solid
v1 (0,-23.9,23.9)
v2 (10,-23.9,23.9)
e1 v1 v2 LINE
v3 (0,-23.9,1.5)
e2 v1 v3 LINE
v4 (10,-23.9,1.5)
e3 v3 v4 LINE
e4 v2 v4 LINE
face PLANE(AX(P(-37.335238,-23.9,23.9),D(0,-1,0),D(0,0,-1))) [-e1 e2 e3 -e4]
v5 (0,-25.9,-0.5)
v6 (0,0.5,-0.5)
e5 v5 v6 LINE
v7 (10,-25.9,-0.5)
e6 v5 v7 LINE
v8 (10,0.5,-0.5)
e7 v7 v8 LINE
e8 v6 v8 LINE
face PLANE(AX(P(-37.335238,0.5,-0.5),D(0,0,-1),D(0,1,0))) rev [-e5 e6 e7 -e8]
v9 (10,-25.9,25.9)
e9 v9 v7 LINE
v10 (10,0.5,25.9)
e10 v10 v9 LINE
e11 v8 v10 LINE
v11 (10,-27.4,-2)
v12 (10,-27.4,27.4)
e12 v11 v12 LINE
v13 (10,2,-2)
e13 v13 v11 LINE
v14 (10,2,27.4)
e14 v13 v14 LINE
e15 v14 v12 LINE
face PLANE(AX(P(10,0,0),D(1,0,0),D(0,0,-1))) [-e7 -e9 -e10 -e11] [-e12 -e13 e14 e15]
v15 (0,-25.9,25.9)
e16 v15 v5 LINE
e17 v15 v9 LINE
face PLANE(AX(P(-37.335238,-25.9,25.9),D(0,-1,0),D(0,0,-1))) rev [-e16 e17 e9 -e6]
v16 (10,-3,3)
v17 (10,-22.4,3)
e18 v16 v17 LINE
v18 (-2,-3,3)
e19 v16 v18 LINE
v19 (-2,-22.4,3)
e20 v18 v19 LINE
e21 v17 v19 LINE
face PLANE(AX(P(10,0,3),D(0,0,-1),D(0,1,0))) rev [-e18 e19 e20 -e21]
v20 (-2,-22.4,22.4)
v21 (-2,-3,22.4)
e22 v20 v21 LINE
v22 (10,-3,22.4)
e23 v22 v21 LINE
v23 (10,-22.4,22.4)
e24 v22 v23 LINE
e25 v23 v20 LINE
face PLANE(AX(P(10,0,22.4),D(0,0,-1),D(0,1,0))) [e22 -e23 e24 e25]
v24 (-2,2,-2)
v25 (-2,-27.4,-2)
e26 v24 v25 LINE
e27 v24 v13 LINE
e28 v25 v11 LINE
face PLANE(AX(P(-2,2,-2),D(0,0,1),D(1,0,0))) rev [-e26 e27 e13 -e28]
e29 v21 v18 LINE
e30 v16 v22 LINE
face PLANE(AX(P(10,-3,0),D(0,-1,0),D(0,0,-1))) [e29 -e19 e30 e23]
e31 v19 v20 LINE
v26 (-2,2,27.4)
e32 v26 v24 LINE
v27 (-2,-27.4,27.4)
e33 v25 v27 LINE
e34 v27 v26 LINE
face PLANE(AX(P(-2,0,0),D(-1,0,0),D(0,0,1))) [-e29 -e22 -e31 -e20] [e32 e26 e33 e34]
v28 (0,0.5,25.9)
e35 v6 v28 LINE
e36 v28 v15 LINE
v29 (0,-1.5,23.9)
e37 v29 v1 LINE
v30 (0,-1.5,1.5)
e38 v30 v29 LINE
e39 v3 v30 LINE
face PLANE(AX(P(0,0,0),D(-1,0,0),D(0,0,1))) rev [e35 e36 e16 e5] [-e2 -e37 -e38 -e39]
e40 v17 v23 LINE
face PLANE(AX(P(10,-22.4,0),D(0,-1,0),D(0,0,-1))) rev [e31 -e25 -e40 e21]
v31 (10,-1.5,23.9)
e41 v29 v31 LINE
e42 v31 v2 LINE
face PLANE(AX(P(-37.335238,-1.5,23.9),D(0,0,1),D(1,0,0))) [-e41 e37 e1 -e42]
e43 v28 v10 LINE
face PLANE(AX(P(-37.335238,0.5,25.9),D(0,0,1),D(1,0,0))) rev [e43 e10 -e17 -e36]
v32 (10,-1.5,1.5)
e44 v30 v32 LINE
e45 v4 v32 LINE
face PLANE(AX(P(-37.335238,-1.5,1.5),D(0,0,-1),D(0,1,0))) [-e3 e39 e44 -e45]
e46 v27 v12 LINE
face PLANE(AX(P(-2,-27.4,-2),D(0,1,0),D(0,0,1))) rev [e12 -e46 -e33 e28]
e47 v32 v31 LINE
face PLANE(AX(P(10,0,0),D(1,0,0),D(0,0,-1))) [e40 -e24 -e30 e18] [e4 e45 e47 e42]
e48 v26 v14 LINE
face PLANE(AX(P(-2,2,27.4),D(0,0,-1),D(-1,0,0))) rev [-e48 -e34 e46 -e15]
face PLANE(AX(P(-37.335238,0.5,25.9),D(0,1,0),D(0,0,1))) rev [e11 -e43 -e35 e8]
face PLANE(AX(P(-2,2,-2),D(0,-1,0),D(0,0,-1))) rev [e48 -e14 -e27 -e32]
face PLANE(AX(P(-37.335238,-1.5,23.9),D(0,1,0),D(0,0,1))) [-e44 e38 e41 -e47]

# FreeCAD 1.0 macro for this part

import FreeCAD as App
import Part
import Sketcher

V = App.Vector
Q = App.Units.Quantity

doc = App.newDocument("Part")
params = doc.addObject("Spreadsheet::Sheet", "Params")
for row, (alias, value) in enumerate([
    ("sketch1_width", "23.4 mm"),
    ("sketch1_width2", "19.4 mm"),
    ("pad1_length", "10 mm"),
    ("sketch2_width", "29.4 mm"),
    ("sketch2_width2", "25.4 mm"),
    ("pad2_length", "10 mm"),
    ("sketch3_width", "29.4 mm"),
    ("sketch3_width2", "19.4 mm"),
    ("pad3_length", "2 mm"),
    ("sketch4_width", "26.4 mm"),
    ("sketch4_width2", "22.4 mm"),
    ("pocket1_length", "10 mm"),
], start=1):
    params.set(f"A{row}", alias)
    params.set(f"B{row}", "=" + value)
    params.setAlias(f"B{row}", alias)

body = doc.addObject("PartDesign::Body", "Body")

sketch1 = body.newObject("Sketcher::SketchObject", "Sketch")
sketch1.AttachmentSupport = (doc.getObject("YZ_Plane"), [""])
sketch1.MapMode = "FlatFace"
sketch1.addGeometry(Part.LineSegment(V(-1, 24.4, 0), V(-24.4, 24.4, 0)), False)
sketch1.addGeometry(Part.LineSegment(V(-24.4, 24.4, 0), V(-24.4, 1, 0)), False)
sketch1.addGeometry(Part.LineSegment(V(-24.4, 1, 0), V(-1, 1, 0)), False)
sketch1.addGeometry(Part.LineSegment(V(-1, 1, 0), V(-1, 24.4, 0)), False)
sketch1.addGeometry(Part.LineSegment(V(-22.4, 3, 0), V(-22.4, 22.4, 0)), False)
sketch1.addGeometry(Part.LineSegment(V(-22.4, 22.4, 0), V(-3, 22.4, 0)), False)
sketch1.addGeometry(Part.LineSegment(V(-3, 22.4, 0), V(-3, 3, 0)), False)
sketch1.addGeometry(Part.LineSegment(V(-3, 3, 0), V(-22.4, 3, 0)), False)
sketch1.addConstraint(Sketcher.Constraint("Coincident", 0, 2, 1, 1))
sketch1.addConstraint(Sketcher.Constraint("Coincident", 1, 2, 2, 1))
sketch1.addConstraint(Sketcher.Constraint("Coincident", 2, 2, 3, 1))
sketch1.addConstraint(Sketcher.Constraint("Coincident", 3, 2, 0, 1))
sketch1.addConstraint(Sketcher.Constraint("Coincident", 4, 2, 5, 1))
sketch1.addConstraint(Sketcher.Constraint("Coincident", 5, 2, 6, 1))
sketch1.addConstraint(Sketcher.Constraint("Coincident", 6, 2, 7, 1))
sketch1.addConstraint(Sketcher.Constraint("Coincident", 7, 2, 4, 1))
sketch1.addConstraint(Sketcher.Constraint("Horizontal", 0))
sketch1.addConstraint(Sketcher.Constraint("Vertical", 1))
sketch1.addConstraint(Sketcher.Constraint("Horizontal", 2))
sketch1.addConstraint(Sketcher.Constraint("Vertical", 3))
sketch1.addConstraint(Sketcher.Constraint("Vertical", 4))
sketch1.addConstraint(Sketcher.Constraint("Horizontal", 5))
sketch1.addConstraint(Sketcher.Constraint("Vertical", 6))
sketch1.addConstraint(Sketcher.Constraint("Horizontal", 7))
sketch1.addConstraint(Sketcher.Constraint("Equal", 2, 1))
sketch1.addConstraint(Sketcher.Constraint("Equal", 7, 4))
sketch1.addConstraint(Sketcher.Constraint("DistanceX", 0, 2, 0, 1, Q("23.4 mm")))
sketch1.addConstraint(Sketcher.Constraint("DistanceX", 5, 1, 5, 2, Q("19.4 mm")))
sketch1.addConstraint(Sketcher.Constraint("DistanceY", -1, 1, 1, 2, Q("1 mm")))
sketch1.addConstraint(Sketcher.Constraint("DistanceX", 2, 2, -1, 1, Q("1 mm")))
sketch1.addConstraint(Sketcher.Constraint("DistanceX", 5, 2, -1, 1, Q("3 mm")))
sketch1.addConstraint(Sketcher.Constraint("DistanceY", -1, 1, 6, 2, Q("3 mm")))
sketch1.setExpression("Constraints[18]", "Params.sketch1_width")
sketch1.setExpression("Constraints[19]", "Params.sketch1_width2")
pad1 = body.newObject("PartDesign::Pad", "Pad")
pad1.Profile = sketch1
pad1.setExpression("Length", "Params.pad1_length")
body2 = doc.addObject("PartDesign::Body", "Body001")

sketch2 = body2.newObject("Sketcher::SketchObject", "Sketch001")
sketch2.AttachmentSupport = (doc.getObject("YZ_Plane001"), [""])
sketch2.MapMode = "FlatFace"
sketch2.addGeometry(Part.LineSegment(V(2, 27.4, 0), V(-27.4, 27.4, 0)), False)
sketch2.addGeometry(Part.LineSegment(V(-27.4, 27.4, 0), V(-27.4, -2, 0)), False)
sketch2.addGeometry(Part.LineSegment(V(-27.4, -2, 0), V(2, -2, 0)), False)
sketch2.addGeometry(Part.LineSegment(V(2, -2, 0), V(2, 27.4, 0)), False)
sketch2.addGeometry(Part.LineSegment(V(-25.4, 0, 0), V(-25.4, 25.4, 0)), False)
sketch2.addGeometry(Part.LineSegment(V(-25.4, 25.4, 0), V(0, 25.4, 0)), False)
sketch2.addGeometry(Part.LineSegment(V(0, 25.4, 0), V(0, 0, 0)), False)
sketch2.addGeometry(Part.LineSegment(V(0, 0, 0), V(-25.4, 0, 0)), False)
sketch2.addConstraint(Sketcher.Constraint("Coincident", 0, 2, 1, 1))
sketch2.addConstraint(Sketcher.Constraint("Coincident", 1, 2, 2, 1))
sketch2.addConstraint(Sketcher.Constraint("Coincident", 2, 2, 3, 1))
sketch2.addConstraint(Sketcher.Constraint("Coincident", 3, 2, 0, 1))
sketch2.addConstraint(Sketcher.Constraint("Coincident", 4, 2, 5, 1))
sketch2.addConstraint(Sketcher.Constraint("Coincident", 5, 2, 6, 1))
sketch2.addConstraint(Sketcher.Constraint("Coincident", 6, 2, 7, 1))
sketch2.addConstraint(Sketcher.Constraint("Coincident", 7, 2, 4, 1))
sketch2.addConstraint(Sketcher.Constraint("Horizontal", 0))
sketch2.addConstraint(Sketcher.Constraint("Vertical", 1))
sketch2.addConstraint(Sketcher.Constraint("Horizontal", 2))
sketch2.addConstraint(Sketcher.Constraint("Vertical", 3))
sketch2.addConstraint(Sketcher.Constraint("Vertical", 4))
sketch2.addConstraint(Sketcher.Constraint("Horizontal", 5))
sketch2.addConstraint(Sketcher.Constraint("Vertical", 6))
sketch2.addConstraint(Sketcher.Constraint("Horizontal", 7))
sketch2.addConstraint(Sketcher.Constraint("Coincident", 6, 2, -1, 1))
sketch2.addConstraint(Sketcher.Constraint("Equal", 2, 1))
sketch2.addConstraint(Sketcher.Constraint("Equal", 7, 4))
sketch2.addConstraint(Sketcher.Constraint("DistanceX", 0, 2, 0, 1, Q("29.4 mm")))
sketch2.addConstraint(Sketcher.Constraint("DistanceX", 5, 1, 5, 2, Q("25.4 mm")))
sketch2.addConstraint(Sketcher.Constraint("DistanceY", 1, 2, -1, 1, Q("2 mm")))
sketch2.addConstraint(Sketcher.Constraint("DistanceX", -1, 1, 2, 2, Q("2 mm")))
sketch2.setExpression("Constraints[19]", "Params.sketch2_width")
sketch2.setExpression("Constraints[20]", "Params.sketch2_width2")
pad2 = body2.newObject("PartDesign::Pad", "Pad001")
pad2.Profile = sketch2
pad2.setExpression("Length", "Params.pad2_length")
body.AllowCompound = True
doc.recompute()

boolean = body.newObject("PartDesign::Boolean", "Boolean")
boolean.Type = "Fuse"
boolean.addObjects([body2])

sketch3 = body.newObject("Sketcher::SketchObject", "Sketch002")
sketch3.AttachmentSupport = (doc.getObject("YZ_Plane"), [""])
sketch3.MapMode = "FlatFace"
sketch3.addGeometry(Part.LineSegment(V(2, -2, 0), V(-27.4, -2, 0)), False)
sketch3.addGeometry(Part.LineSegment(V(-27.4, -2, 0), V(-27.4, 27.4, 0)), False)
sketch3.addGeometry(Part.LineSegment(V(-27.4, 27.4, 0), V(2, 27.4, 0)), False)
sketch3.addGeometry(Part.LineSegment(V(2, 27.4, 0), V(2, -2, 0)), False)
sketch3.addGeometry(Part.LineSegment(V(-22.4, 22.4, 0), V(-22.4, 3, 0)), False)
sketch3.addGeometry(Part.LineSegment(V(-22.4, 3, 0), V(-3, 3, 0)), False)
sketch3.addGeometry(Part.LineSegment(V(-3, 3, 0), V(-3, 22.4, 0)), False)
sketch3.addGeometry(Part.LineSegment(V(-3, 22.4, 0), V(-22.4, 22.4, 0)), False)
sketch3.addConstraint(Sketcher.Constraint("Coincident", 0, 2, 1, 1))
sketch3.addConstraint(Sketcher.Constraint("Coincident", 1, 2, 2, 1))
sketch3.addConstraint(Sketcher.Constraint("Coincident", 2, 2, 3, 1))
sketch3.addConstraint(Sketcher.Constraint("Coincident", 3, 2, 0, 1))
sketch3.addConstraint(Sketcher.Constraint("Coincident", 4, 2, 5, 1))
sketch3.addConstraint(Sketcher.Constraint("Coincident", 5, 2, 6, 1))
sketch3.addConstraint(Sketcher.Constraint("Coincident", 6, 2, 7, 1))
sketch3.addConstraint(Sketcher.Constraint("Coincident", 7, 2, 4, 1))
sketch3.addConstraint(Sketcher.Constraint("Horizontal", 0))
sketch3.addConstraint(Sketcher.Constraint("Vertical", 1))
sketch3.addConstraint(Sketcher.Constraint("Horizontal", 2))
sketch3.addConstraint(Sketcher.Constraint("Vertical", 3))
sketch3.addConstraint(Sketcher.Constraint("Vertical", 4))
sketch3.addConstraint(Sketcher.Constraint("Horizontal", 5))
sketch3.addConstraint(Sketcher.Constraint("Vertical", 6))
sketch3.addConstraint(Sketcher.Constraint("Horizontal", 7))
sketch3.addConstraint(Sketcher.Constraint("Equal", 2, 1))
sketch3.addConstraint(Sketcher.Constraint("Equal", 7, 4))
sketch3.addConstraint(Sketcher.Constraint("DistanceX", 0, 2, 0, 1, Q("29.4 mm")))
sketch3.addConstraint(Sketcher.Constraint("DistanceX", 5, 1, 5, 2, Q("19.4 mm")))
sketch3.addConstraint(Sketcher.Constraint("DistanceY", 0, 2, -1, 1, Q("2 mm")))
sketch3.addConstraint(Sketcher.Constraint("DistanceX", -1, 1, 2, 2, Q("2 mm")))
sketch3.addConstraint(Sketcher.Constraint("DistanceY", -1, 1, 4, 2, Q("3 mm")))
sketch3.addConstraint(Sketcher.Constraint("DistanceX", 5, 2, -1, 1, Q("3 mm")))
sketch3.setExpression("Constraints[18]", "Params.sketch3_width")
sketch3.setExpression("Constraints[19]", "Params.sketch3_width2")
pad3 = body.newObject("PartDesign::Pad", "Pad002")
pad3.Profile = sketch3
pad3.setExpression("Length", "Params.pad3_length")
pad3.Reversed = True

sketch4 = body.newObject("Sketcher::SketchObject", "Sketch003")
sketch4.AttachmentSupport = (doc.getObject("YZ_Plane"), [""])
sketch4.MapMode = "FlatFace"
sketch4.AttachmentOffset = App.Placement(V(0, 0, 10), App.Rotation())
sketch4.addGeometry(Part.LineSegment(V(0.5, 25.9, 0), V(-25.9, 25.9, 0)), False)
sketch4.addGeometry(Part.LineSegment(V(-25.9, 25.9, 0), V(-25.9, -0.5, 0)), False)
sketch4.addGeometry(Part.LineSegment(V(-25.9, -0.5, 0), V(0.5, -0.5, 0)), False)
sketch4.addGeometry(Part.LineSegment(V(0.5, -0.5, 0), V(0.5, 25.9, 0)), False)
sketch4.addGeometry(Part.LineSegment(V(-23.9, 1.5, 0), V(-23.9, 23.9, 0)), False)
sketch4.addGeometry(Part.LineSegment(V(-23.9, 23.9, 0), V(-1.5, 23.9, 0)), False)
sketch4.addGeometry(Part.LineSegment(V(-1.5, 23.9, 0), V(-1.5, 1.5, 0)), False)
sketch4.addGeometry(Part.LineSegment(V(-1.5, 1.5, 0), V(-23.9, 1.5, 0)), False)
sketch4.addConstraint(Sketcher.Constraint("Coincident", 0, 2, 1, 1))
sketch4.addConstraint(Sketcher.Constraint("Coincident", 1, 2, 2, 1))
sketch4.addConstraint(Sketcher.Constraint("Coincident", 2, 2, 3, 1))
sketch4.addConstraint(Sketcher.Constraint("Coincident", 3, 2, 0, 1))
sketch4.addConstraint(Sketcher.Constraint("Coincident", 4, 2, 5, 1))
sketch4.addConstraint(Sketcher.Constraint("Coincident", 5, 2, 6, 1))
sketch4.addConstraint(Sketcher.Constraint("Coincident", 6, 2, 7, 1))
sketch4.addConstraint(Sketcher.Constraint("Coincident", 7, 2, 4, 1))
sketch4.addConstraint(Sketcher.Constraint("Horizontal", 0))
sketch4.addConstraint(Sketcher.Constraint("Vertical", 1))
sketch4.addConstraint(Sketcher.Constraint("Horizontal", 2))
sketch4.addConstraint(Sketcher.Constraint("Vertical", 3))
sketch4.addConstraint(Sketcher.Constraint("Vertical", 4))
sketch4.addConstraint(Sketcher.Constraint("Horizontal", 5))
sketch4.addConstraint(Sketcher.Constraint("Vertical", 6))
sketch4.addConstraint(Sketcher.Constraint("Horizontal", 7))
sketch4.addConstraint(Sketcher.Constraint("Equal", 2, 1))
sketch4.addConstraint(Sketcher.Constraint("Equal", 7, 4))
sketch4.addConstraint(Sketcher.Constraint("DistanceX", 0, 2, 0, 1, Q("26.4 mm")))
sketch4.addConstraint(Sketcher.Constraint("DistanceX", 5, 1, 5, 2, Q("22.4 mm")))
sketch4.addConstraint(Sketcher.Constraint("DistanceX", 0, 2, 4, 2, Q("2 mm")))
sketch4.addConstraint(Sketcher.Constraint("DistanceY", 4, 2, 0, 2, Q("2 mm")))
sketch4.addConstraint(Sketcher.Constraint("DistanceX", 0, 2, -1, 1, Q("25.9 mm")))
sketch4.addConstraint(Sketcher.Constraint("DistanceY", -1, 1, 0, 2, Q("25.9 mm")))
sketch4.setExpression("Constraints[18]", "Params.sketch4_width")
sketch4.setExpression("Constraints[19]", "Params.sketch4_width2")
pocket1 = body.newObject("PartDesign::Pocket", "Pocket")
pocket1.Profile = sketch4
pocket1.setExpression("Length", "Params.pocket1_length")

doc.recompute()
